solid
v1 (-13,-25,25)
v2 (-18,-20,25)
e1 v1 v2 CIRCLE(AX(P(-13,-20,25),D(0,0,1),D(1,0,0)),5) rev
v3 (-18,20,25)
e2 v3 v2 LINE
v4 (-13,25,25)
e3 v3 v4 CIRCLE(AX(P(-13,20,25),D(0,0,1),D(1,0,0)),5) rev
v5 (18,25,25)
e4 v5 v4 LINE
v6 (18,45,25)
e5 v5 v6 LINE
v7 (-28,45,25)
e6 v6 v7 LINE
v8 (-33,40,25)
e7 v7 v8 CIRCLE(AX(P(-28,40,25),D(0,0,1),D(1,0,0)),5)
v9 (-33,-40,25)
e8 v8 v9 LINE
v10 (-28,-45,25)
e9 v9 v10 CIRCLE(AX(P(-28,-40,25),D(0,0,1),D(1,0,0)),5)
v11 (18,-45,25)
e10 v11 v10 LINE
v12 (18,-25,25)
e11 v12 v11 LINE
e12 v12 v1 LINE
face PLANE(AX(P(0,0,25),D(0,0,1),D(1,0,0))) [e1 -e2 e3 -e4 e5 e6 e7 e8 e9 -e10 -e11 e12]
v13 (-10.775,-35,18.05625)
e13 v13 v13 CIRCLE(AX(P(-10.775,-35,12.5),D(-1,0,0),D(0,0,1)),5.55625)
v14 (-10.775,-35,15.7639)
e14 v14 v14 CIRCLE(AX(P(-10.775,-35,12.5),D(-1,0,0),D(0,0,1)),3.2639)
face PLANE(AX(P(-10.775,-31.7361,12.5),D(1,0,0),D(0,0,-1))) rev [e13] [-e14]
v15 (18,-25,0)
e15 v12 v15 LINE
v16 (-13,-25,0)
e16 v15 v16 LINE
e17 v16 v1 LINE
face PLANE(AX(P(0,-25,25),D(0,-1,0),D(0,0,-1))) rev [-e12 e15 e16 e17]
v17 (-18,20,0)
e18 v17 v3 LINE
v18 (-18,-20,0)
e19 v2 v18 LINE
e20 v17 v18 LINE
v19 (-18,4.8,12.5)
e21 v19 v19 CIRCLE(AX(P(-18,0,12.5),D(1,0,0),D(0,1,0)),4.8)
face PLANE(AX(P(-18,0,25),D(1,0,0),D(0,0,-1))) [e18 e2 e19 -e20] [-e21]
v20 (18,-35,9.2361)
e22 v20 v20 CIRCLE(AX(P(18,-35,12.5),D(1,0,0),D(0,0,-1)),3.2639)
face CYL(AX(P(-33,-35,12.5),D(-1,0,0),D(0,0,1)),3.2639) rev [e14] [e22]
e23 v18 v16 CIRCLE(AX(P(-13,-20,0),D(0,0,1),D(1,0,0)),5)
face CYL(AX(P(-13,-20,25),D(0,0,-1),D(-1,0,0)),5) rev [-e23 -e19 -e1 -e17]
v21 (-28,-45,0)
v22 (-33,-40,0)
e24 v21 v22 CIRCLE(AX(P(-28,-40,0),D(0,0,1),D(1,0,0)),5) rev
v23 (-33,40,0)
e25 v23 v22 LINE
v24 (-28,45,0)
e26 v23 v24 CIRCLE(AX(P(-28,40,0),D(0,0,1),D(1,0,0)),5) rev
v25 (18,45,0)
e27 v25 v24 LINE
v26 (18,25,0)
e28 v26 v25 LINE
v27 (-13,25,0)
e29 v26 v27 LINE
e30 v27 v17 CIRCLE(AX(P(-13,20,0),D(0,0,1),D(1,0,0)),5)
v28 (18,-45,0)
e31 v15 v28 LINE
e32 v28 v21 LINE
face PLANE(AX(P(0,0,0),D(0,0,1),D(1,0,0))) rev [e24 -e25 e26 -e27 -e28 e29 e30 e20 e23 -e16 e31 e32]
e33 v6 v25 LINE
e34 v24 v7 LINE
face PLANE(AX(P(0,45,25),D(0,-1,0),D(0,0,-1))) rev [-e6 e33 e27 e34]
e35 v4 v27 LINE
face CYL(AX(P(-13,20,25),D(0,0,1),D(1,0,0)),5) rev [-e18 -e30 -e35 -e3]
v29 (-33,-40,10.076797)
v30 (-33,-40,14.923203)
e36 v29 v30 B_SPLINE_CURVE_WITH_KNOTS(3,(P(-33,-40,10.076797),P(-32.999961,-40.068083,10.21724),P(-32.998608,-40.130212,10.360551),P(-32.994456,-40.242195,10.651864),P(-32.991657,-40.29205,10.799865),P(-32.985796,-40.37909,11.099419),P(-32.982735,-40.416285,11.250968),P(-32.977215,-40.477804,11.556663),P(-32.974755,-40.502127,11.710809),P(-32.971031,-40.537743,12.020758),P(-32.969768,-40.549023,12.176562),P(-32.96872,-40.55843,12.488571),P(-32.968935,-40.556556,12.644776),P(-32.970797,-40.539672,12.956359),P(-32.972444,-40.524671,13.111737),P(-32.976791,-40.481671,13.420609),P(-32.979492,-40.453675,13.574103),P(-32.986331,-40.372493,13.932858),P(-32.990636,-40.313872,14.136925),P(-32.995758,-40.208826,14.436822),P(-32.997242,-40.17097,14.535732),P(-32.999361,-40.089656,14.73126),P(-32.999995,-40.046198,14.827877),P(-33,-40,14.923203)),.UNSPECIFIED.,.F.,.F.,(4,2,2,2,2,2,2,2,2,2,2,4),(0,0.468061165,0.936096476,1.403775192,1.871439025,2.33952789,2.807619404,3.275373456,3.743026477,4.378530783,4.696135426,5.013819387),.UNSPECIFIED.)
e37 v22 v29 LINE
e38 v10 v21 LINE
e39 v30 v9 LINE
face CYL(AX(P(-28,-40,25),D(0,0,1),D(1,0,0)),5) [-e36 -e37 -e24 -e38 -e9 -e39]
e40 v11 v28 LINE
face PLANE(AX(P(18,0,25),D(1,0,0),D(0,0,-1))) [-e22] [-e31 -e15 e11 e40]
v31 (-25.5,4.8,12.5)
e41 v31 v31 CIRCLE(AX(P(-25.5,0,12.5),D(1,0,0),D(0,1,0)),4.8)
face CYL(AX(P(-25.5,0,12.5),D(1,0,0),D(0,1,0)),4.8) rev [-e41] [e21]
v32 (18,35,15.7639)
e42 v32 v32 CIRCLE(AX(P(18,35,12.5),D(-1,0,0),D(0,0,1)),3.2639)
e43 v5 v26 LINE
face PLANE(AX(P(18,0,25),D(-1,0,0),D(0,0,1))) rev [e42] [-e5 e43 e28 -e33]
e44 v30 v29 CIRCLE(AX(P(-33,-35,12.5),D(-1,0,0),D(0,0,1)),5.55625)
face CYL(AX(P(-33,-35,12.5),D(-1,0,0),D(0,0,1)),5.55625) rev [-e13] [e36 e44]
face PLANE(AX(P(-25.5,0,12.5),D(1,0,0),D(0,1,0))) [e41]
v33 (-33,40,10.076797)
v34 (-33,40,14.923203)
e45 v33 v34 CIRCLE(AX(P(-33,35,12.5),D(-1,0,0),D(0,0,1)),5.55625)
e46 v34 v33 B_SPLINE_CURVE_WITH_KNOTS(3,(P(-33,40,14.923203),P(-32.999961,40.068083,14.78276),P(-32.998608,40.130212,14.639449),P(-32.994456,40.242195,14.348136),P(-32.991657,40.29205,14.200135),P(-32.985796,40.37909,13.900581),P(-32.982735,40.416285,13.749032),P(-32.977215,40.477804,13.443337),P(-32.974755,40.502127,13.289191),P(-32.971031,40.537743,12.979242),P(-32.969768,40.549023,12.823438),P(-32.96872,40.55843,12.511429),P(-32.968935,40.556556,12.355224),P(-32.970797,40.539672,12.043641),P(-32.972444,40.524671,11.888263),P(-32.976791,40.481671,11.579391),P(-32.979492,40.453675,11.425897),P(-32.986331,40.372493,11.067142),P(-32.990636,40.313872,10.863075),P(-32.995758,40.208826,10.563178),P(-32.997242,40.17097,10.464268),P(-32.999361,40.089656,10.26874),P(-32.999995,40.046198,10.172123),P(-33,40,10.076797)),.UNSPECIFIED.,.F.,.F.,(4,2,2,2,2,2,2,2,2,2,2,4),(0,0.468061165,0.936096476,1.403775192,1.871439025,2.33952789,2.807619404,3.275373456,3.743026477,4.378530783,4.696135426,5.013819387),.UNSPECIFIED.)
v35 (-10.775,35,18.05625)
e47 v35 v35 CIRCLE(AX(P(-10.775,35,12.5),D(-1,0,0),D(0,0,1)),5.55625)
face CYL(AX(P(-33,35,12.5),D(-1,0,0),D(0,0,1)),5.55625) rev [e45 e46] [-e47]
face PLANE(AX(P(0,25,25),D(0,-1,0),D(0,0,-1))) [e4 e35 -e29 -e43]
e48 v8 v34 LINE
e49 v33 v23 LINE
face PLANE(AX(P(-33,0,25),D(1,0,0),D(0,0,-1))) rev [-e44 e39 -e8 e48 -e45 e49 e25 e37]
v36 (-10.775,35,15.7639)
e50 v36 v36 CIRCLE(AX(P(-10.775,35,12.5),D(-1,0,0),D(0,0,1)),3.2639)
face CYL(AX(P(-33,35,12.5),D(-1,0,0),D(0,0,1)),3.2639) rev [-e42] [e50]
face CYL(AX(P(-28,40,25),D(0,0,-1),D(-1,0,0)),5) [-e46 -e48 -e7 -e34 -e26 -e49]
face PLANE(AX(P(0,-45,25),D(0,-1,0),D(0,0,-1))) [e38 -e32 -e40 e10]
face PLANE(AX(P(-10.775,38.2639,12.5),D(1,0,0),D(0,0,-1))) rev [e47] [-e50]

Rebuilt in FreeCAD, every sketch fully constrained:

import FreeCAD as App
import Part
import Sketcher
from FreeCAD import Vector


def edges_at(feature, points):
    """Names of the edges that pass closest to the given points."""
    edges = feature.Shape.Edges
    near = lambda p: min(range(len(edges)), key=lambda i: edges[i].distToShape(Part.Vertex(*p))[0])
    return sorted({f"Edge{near(p) + 1}" for p in points})


def add_polygon(sketch, points):
    """Adds a closed chain of lines whose ends are joined by coincident constraints."""
    first, n = sketch.GeometryCount, len(points)
    for a, b in zip(points, points[1:] + points[:1]):
        sketch.addGeometry(Part.LineSegment(App.Vector(*a, 0), App.Vector(*b, 0)), False)
    for i in range(n):
        sketch.addConstraint(Sketcher.Constraint("Coincident", first + i, 2, first + (i + 1) % n, 1))

doc = App.newDocument("Part")
body = doc.addObject("PartDesign::Body", "Body")

# Sketch on XY plane
sketch1 = body.newObject("Sketcher::SketchObject", "Sketch")
sketch1.AttachmentSupport = (doc.getObject("XY_Plane"), [""])
sketch1.MapMode = "FlatFace"
add_polygon(sketch1, [(-18, 25), (18, 25), (18, 45), (-33, 45), (-33, -45), (18, -45), (18, -25), (-18, -25)])  # lines 0-7
sketch1.addConstraint([
    Sketcher.Constraint("Horizontal", 0),
    Sketcher.Constraint("Vertical", 1),
    Sketcher.Constraint("Horizontal", 2),
    Sketcher.Constraint("Vertical", 3),
    Sketcher.Constraint("Horizontal", 4),
    Sketcher.Constraint("Vertical", 5),
    Sketcher.Constraint("Horizontal", 6),
    Sketcher.Constraint("Vertical", 7),
    Sketcher.Constraint("Symmetric", 0, 2, 6, 2, -1, 1),
    Sketcher.Constraint("Symmetric", 1, 2, 4, 2, -1),
    Sketcher.Constraint("DistanceX", 0, 1, 0, 2, 36.0),
    Sketcher.Constraint("DistanceX", 2, 2, 2, 1, 51.0),
    Sketcher.Constraint("DistanceY", 1, 1, 1, 2, 20.0),
    Sketcher.Constraint("DistanceY", 3, 2, 3, 1, 90.0),
])
pad1 = body.newObject("PartDesign::Pad", "Pad")
pad1.Profile = sketch1
pad1.Length = 25

# Sketch on YZ plane
sketch2 = body.newObject("Sketcher::SketchObject", "Sketch001")
sketch2.AttachmentSupport = (doc.getObject("YZ_Plane"), [""])
sketch2.MapMode = "FlatFace"
sketch2.AttachmentOffset = App.Placement(Vector(0, 0, -18), App.Rotation())
sketch2.addGeometry(Part.Circle(Vector(0, 12.5, 0), Vector(0, 0, 1), 4.8), False)
sketch2.addConstraint([
    Sketcher.Constraint("PointOnObject", 0, 3, -2),
    Sketcher.Constraint("Diameter", 0, 9.6),
    Sketcher.Constraint("DistanceY", -1, 1, 0, 3, 12.5),
])
pocket1 = body.newObject("PartDesign::Pocket", "Pocket")
pocket1.Profile = sketch2
pocket1.Length = 7.5
doc.recompute()

fillet = body.newObject("PartDesign::Fillet", "Fillet")
fillet.Base = (pocket1, edges_at(pocket1, [
    (-33, -45, 12.5),
    (-33, 45, 12.5),
    (-18, 25, 12.5),
    (-18, -25, 12.5),
]))
fillet.Radius = 5

# Sketch on YZ plane
sketch3 = body.newObject("Sketcher::SketchObject", "Sketch002")
sketch3.AttachmentSupport = (doc.getObject("YZ_Plane"), [""])
sketch3.MapMode = "FlatFace"
sketch3.AttachmentOffset = App.Placement(Vector(0, 0, -33), App.Rotation())
sketch3.addGeometry([
    Part.Circle(Vector(35, 12.5, 0), Vector(0, 0, 1), 3.2639),
    Part.Circle(Vector(-35, 12.5, 0), Vector(0, 0, 1), 3.2639),
], False)
sketch3.addConstraint([
    Sketcher.Constraint("Equal", 0, 1),
    Sketcher.Constraint("Symmetric", 0, 3, 1, 3, -2),
    Sketcher.Constraint("DistanceX", -1, 1, 0, 3, 35.0),
    Sketcher.Constraint("Diameter", 0, 6.5278),
    Sketcher.Constraint("DistanceY", -1, 1, 0, 3, 12.5),
])
doc.recompute()
hole = body.newObject("PartDesign::Hole", "Hole")
hole.Profile = sketch3
hole.ThreadType = "None"
hole.Diameter = 6.5278
hole.DepthType = "ThroughAll"
hole.HoleCutType = "Counterbore"
hole.HoleCutDiameter = 11.1125
hole.HoleCutDepth = 22.225
hole.Reversed = True

doc.recompute()
